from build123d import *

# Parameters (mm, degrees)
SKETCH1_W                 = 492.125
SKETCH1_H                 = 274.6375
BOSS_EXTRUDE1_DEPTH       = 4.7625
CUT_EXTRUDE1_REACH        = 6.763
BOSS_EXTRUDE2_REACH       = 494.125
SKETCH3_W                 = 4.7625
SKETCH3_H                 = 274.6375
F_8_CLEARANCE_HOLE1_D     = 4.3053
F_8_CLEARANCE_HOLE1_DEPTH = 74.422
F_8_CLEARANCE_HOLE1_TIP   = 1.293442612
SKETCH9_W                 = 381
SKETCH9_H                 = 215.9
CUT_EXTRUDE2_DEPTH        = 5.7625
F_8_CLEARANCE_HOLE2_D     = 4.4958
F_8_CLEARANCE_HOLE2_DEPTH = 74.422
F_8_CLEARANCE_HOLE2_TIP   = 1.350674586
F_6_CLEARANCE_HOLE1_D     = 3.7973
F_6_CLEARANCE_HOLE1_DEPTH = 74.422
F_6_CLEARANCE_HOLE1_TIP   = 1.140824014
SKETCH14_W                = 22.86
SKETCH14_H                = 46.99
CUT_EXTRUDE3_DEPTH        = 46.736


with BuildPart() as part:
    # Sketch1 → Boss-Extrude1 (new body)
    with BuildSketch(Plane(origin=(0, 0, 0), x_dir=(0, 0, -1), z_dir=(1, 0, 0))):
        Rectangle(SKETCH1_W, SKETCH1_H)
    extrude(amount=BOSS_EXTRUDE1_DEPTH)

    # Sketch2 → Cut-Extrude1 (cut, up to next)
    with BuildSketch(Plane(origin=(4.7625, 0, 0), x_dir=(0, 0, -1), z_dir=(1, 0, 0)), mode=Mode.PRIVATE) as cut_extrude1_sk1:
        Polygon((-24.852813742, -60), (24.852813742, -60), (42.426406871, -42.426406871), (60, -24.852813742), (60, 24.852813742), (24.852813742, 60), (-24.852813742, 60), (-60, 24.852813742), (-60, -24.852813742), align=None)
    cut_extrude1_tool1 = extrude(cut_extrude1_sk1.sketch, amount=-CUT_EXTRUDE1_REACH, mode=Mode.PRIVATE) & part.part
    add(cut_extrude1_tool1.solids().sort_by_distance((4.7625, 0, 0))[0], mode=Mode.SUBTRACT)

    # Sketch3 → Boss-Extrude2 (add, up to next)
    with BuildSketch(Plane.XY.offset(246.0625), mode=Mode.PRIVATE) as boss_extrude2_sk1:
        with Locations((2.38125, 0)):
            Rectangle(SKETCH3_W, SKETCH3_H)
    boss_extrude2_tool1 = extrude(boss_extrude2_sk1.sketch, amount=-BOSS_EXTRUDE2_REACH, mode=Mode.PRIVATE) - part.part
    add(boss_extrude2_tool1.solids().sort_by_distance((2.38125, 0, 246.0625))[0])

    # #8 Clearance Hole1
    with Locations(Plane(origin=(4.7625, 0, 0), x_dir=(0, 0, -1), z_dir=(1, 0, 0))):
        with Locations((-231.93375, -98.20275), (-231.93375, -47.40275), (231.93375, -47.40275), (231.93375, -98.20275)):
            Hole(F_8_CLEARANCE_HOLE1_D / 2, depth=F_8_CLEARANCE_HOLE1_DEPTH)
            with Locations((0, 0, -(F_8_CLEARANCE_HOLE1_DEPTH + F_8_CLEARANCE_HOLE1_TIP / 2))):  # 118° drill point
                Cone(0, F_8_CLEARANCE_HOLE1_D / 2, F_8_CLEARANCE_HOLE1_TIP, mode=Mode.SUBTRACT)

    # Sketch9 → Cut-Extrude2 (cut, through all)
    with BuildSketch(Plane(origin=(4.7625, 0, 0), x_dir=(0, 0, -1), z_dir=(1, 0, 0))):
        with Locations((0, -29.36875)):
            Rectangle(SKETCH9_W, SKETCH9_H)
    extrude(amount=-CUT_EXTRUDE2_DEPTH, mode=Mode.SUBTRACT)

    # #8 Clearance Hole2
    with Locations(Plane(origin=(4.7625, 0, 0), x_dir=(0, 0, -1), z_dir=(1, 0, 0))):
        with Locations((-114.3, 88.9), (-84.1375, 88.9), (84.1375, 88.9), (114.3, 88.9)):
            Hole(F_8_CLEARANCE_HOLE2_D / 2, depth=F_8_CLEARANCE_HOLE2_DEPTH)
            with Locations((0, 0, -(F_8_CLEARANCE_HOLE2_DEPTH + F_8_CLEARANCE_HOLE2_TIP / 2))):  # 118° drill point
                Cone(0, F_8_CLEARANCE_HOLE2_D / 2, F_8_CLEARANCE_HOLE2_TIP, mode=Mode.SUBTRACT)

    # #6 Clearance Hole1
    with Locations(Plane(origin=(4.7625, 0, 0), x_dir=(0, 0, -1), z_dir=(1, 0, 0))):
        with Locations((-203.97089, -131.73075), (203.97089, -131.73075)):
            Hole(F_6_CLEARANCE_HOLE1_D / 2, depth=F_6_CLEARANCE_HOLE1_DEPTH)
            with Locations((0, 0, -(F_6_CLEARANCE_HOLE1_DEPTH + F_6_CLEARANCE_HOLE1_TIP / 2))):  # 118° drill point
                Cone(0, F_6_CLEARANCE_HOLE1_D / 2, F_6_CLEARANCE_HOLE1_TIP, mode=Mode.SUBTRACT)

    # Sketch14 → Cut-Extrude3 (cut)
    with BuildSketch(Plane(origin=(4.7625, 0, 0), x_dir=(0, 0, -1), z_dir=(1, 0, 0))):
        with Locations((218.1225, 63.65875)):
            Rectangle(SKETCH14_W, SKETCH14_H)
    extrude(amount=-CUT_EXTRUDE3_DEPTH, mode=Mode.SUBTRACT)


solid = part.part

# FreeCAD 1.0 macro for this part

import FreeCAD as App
import Part
import Sketcher

V = App.Vector
Q = App.Units.Quantity


def add_polygon(sketch, points):
    """Adds a closed chain of lines whose ends are joined by coincident constraints."""
    first, n = sketch.GeometryCount, len(points)
    for a, b in zip(points, points[1:] + points[:1]):
        sketch.addGeometry(Part.LineSegment(App.Vector(*a, 0), App.Vector(*b, 0)), False)
    for i in range(n):
        sketch.addConstraint(Sketcher.Constraint("Coincident", first + i, 2, first + (i + 1) % n, 1))

doc = App.newDocument("Part")
params = doc.addObject("Spreadsheet::Sheet", "Params")
for row, (alias, value) in enumerate([
    ("sketch1_width", "10.8125 in"),
    ("sketch1_height", "19.375 in"),
    ("pad1_length", "0.1875 in"),
    ("sketch3_width", "0.1875 in"),
    ("sketch3_height", "10.8125 in"),
    ("pad2_length", "306.0625 mm"),
    ("hole_diameter", "0.1695 in"),
    ("hole_depth", "2.93 in"),
    ("sketch5_height", "15 in"),
    ("sketch5_width", "8.5 in"),
    ("sketch6_diameter", "0.177 in"),
    ("hole2_diameter", "0.177 in"),
    ("hole2_depth", "2.93 in"),
    ("hole3_diameter", "0.1495 in"),
    ("hole3_depth", "2.93 in"),
    ("sketch8_height", "0.9 in"),
    ("sketch8_width", "1.85 in"),
    ("pocket3_length", "1.84 in"),
], start=1):
    params.set(f"A{row}", alias)
    params.set(f"B{row}", "=" + value)
    params.setAlias(f"B{row}", alias)

body = doc.addObject("PartDesign::Body", "Body")

# Sketch on YZ plane
sketch1 = body.newObject("Sketcher::SketchObject", "Sketch")
sketch1.AttachmentSupport = (doc.getObject("YZ_Plane"), [""])
sketch1.MapMode = "FlatFace"
add_polygon(sketch1, [(137, 246), (-137, 246), (-137, -246), (137, -246)])  # lines 0-3
sketch1.addConstraint([
    Sketcher.Constraint("Horizontal", 0),
    Sketcher.Constraint("Vertical", 1),
    Sketcher.Constraint("Horizontal", 2),
    Sketcher.Constraint("Vertical", 3),
    Sketcher.Constraint("Symmetric", 0, 2, 2, 2, -1, 1),
    Sketcher.Constraint("DistanceX", 0, 2, 0, 1, Q("10.8125 in")),
    Sketcher.Constraint("DistanceY", 1, 2, 1, 1, Q("19.375 in")),
])
sketch1.setExpression("Constraints[9]", "Params.sketch1_width")
sketch1.setExpression("Constraints[10]", "Params.sketch1_height")
pad1 = body.newObject("PartDesign::Pad", "Pad")
pad1.Profile = sketch1
pad1.setExpression("Length", "Params.pad1_length")

# Sketch on YZ plane
sketch2 = body.newObject("Sketcher::SketchObject", "Sketch001")
sketch2.AttachmentSupport = (doc.getObject("YZ_Plane"), [""])
sketch2.MapMode = "FlatFace"
sketch2.AttachmentOffset = App.Placement(V(0, 0, 0.1875 * 25.4), App.Rotation())
add_polygon(sketch2, [(-60, 25), (-60, -25), (-25, -60), (25, -60), (60, -25), (60, 25), (25, 60), (-25, 60)])  # lines 0-7
sketch2.addConstraint([
    Sketcher.Constraint("Vertical", 0),
    Sketcher.Constraint("Horizontal", 2),
    Sketcher.Constraint("Vertical", 4),
    Sketcher.Constraint("Horizontal", 6),
    Sketcher.Constraint("Symmetric", 0, 2, 4, 2, -1, 1),
    Sketcher.Constraint("Symmetric", 1, 2, 5, 2, -1, 1),
    Sketcher.Constraint("Perpendicular", 1, 3),
    Sketcher.Constraint("Perpendicular", 5, 7),
    Sketcher.Constraint("Horizontal", 0, 2, 3, 2),
    Sketcher.Constraint("Horizontal", 4, 2, 7, 2),
    Sketcher.Constraint("Vertical", 2, 2, 5, 2),
    Sketcher.Constraint("Equal", 6, 0),
    Sketcher.Constraint("DistanceX", 0, 2, -1, 1, Q("60 mm")),
    Sketcher.Constraint("DistanceX", 2, 1, 2, 2, Q("49.705627 mm")),
])
pocket1 = body.newObject("PartDesign::Pocket", "Pocket")
pocket1.Profile = sketch2
pocket1.Type = "UpToFirst"

# Sketch on XY plane
sketch3 = body.newObject("Sketcher::SketchObject", "Sketch002")
sketch3.AttachmentSupport = (doc.getObject("XY_Plane"), [""])
sketch3.MapMode = "FlatFace"
sketch3.AttachmentOffset = App.Placement(V(0, 0, 9.6875 * 25.4), App.Rotation())
add_polygon(sketch3, [(0, 137.3), (0, -137.3), (4.8, -137.3), (4.8, 137.3)])  # lines 0-3
sketch3.addConstraint([
    Sketcher.Constraint("Vertical", 0),
    Sketcher.Constraint("Horizontal", 1),
    Sketcher.Constraint("Vertical", 2),
    Sketcher.Constraint("Horizontal", 3),
    Sketcher.Constraint("Symmetric", 0, 2, 3, 2, -1, 1),
    Sketcher.Constraint("DistanceX", 1, 1, 1, 2, Q("0.1875 in")),
    Sketcher.Constraint("DistanceY", 0, 2, 0, 1, Q("10.8125 in")),
])
sketch3.setExpression("Constraints[9]", "Params.sketch3_width")
sketch3.setExpression("Constraints[10]", "Params.sketch3_height")
pad2 = body.newObject("PartDesign::Pad", "Pad001")
pad2.Profile = sketch3
pad2.setExpression("Length", "Params.pad2_length")
pad2.Reversed = True

# Sketch on YZ plane
sketch4 = body.newObject("Sketcher::SketchObject", "Sketch003")
sketch4.AttachmentSupport = (doc.getObject("YZ_Plane"), [""])
sketch4.MapMode = "FlatFace"
sketch4.AttachmentOffset = App.Placement(V(0, 0, 0.1875 * 25.4), App.Rotation())
sketch4.addGeometry([
    Part.Circle(V(-98.2, 231.9, 0), V(0, 0, 1), 2.2),
    Part.Circle(V(-47.4, 231.9, 0), V(0, 0, 1), 2.2),
    Part.Circle(V(-47.4, -231.9, 0), V(0, 0, 1), 2.2),
    Part.Circle(V(-98.2, -231.9, 0), V(0, 0, 1), 2.2),
], False)
sketch4.addConstraint([
    Sketcher.Constraint("Equal", 0, 1),
    Sketcher.Constraint("Equal", 1, 2),
    Sketcher.Constraint("Equal", 2, 3),
    Sketcher.Constraint("Symmetric", 1, 3, 2, 3, -1),
    Sketcher.Constraint("Symmetric", 0, 3, 3, 3, -1),
    Sketcher.Constraint("Horizontal", 0, 3, 1, 3),
    Sketcher.Constraint("DistanceX", 0, 3, 1, 3, Q("2 in")),
    Sketcher.Constraint("Diameter", 0, Q("0.1695 in")),
    Sketcher.Constraint("DistanceY", 2, 3, 1, 3, Q("18.2625 in")),
    Sketcher.Constraint("DistanceX", 0, 3, -1, 1, Q("98.20275 mm")),
])
doc.recompute()
hole = body.newObject("PartDesign::Hole", "Hole")
hole.Profile = sketch4
hole.ThreadType = "None"
hole.setExpression("Diameter", "Params.hole_diameter")
hole.DepthType = "Dimension"
hole.setExpression("Depth", "Params.hole_depth")
hole.DrillPoint = "Angled"
hole.DrillPointAngle = 118

# Sketch on YZ plane
sketch5 = body.newObject("Sketcher::SketchObject", "Sketch004")
sketch5.AttachmentSupport = (doc.getObject("YZ_Plane"), [""])
sketch5.MapMode = "FlatFace"
sketch5.AttachmentOffset = App.Placement(V(0, 0, 0.1875 * 25.4), App.Rotation())
add_polygon(sketch5, [(79, 190), (-137, 190), (-137, -190), (79, -190)])  # lines 0-3
sketch5.addConstraint([
    Sketcher.Constraint("Horizontal", 0),
    Sketcher.Constraint("Vertical", 1),
    Sketcher.Constraint("Horizontal", 2),
    Sketcher.Constraint("Vertical", 3),
    Sketcher.Constraint("DistanceY", 1, 2, 1, 1, Q("15 in")),
    Sketcher.Constraint("DistanceX", 0, 2, 0, 1, Q("8.5 in")),
    Sketcher.Constraint("DistanceY", -1, 1, 0, 2, Q("7.5 in")),
    Sketcher.Constraint("DistanceX", 0, 2, -1, 1, Q("5.40625 in")),
])
sketch5.setExpression("Constraints[8]", "Params.sketch5_height")
sketch5.setExpression("Constraints[9]", "Params.sketch5_width")
pocket2 = body.newObject("PartDesign::Pocket", "Pocket001")
pocket2.Profile = sketch5
pocket2.Type = "ThroughAll"

# Sketch on YZ plane
sketch6 = body.newObject("Sketcher::SketchObject", "Sketch005")
sketch6.AttachmentSupport = (doc.getObject("YZ_Plane"), [""])
sketch6.MapMode = "FlatFace"
sketch6.AttachmentOffset = App.Placement(V(0, 0, 0.1875 * 25.4), App.Rotation())
sketch6.addGeometry([
    Part.Circle(V(88.9, 114.3, 0), V(0, 0, 1), 2.2),
    Part.Circle(V(88.9, 84.1, 0), V(0, 0, 1), 2.2),
    Part.Circle(V(88.9, -84.1, 0), V(0, 0, 1), 2.2),
    Part.Circle(V(88.9, -114.3, 0), V(0, 0, 1), 2.2),
], False)
sketch6.addConstraint([
    Sketcher.Constraint("Equal", 0, 1),
    Sketcher.Constraint("Equal", 1, 2),
    Sketcher.Constraint("Equal", 2, 3),
    Sketcher.Constraint("Symmetric", 1, 3, 2, 3, -1),
    Sketcher.Constraint("Symmetric", 0, 3, 3, 3, -1),
    Sketcher.Constraint("Vertical", 0, 3, 1, 3),
    Sketcher.Constraint("Diameter", 0, Q("0.177 in")),
    Sketcher.Constraint("DistanceY", 3, 3, 0, 3, Q("9 in")),
    Sketcher.Constraint("DistanceX", -1, 1, 0, 3, Q("3.5 in")),
    Sketcher.Constraint("DistanceY", -1, 1, 1, 3, Q("3.3125 in")),
])
sketch6.setExpression("Constraints[6]", "Params.sketch6_diameter")
doc.recompute()
hole2 = body.newObject("PartDesign::Hole", "Hole001")
hole2.Profile = sketch6
hole2.ThreadType = "None"
hole2.setExpression("Diameter", "Params.hole2_diameter")
hole2.DepthType = "Dimension"
hole2.setExpression("Depth", "Params.hole2_depth")
hole2.DrillPoint = "Angled"
hole2.DrillPointAngle = 118

# Sketch on YZ plane
sketch7 = body.newObject("Sketcher::SketchObject", "Sketch006")
sketch7.AttachmentSupport = (doc.getObject("YZ_Plane"), [""])
sketch7.MapMode = "FlatFace"
sketch7.AttachmentOffset = App.Placement(V(0, 0, 0.1875 * 25.4), App.Rotation())
sketch7.addGeometry([
    Part.Circle(V(-131.7, 204, 0), V(0, 0, 1), 1.9),
    Part.Circle(V(-131.7, -204, 0), V(0, 0, 1), 1.9),
], False)
sketch7.addConstraint([
    Sketcher.Constraint("Equal", 0, 1),
    Sketcher.Constraint("Symmetric", 0, 3, 1, 3, -1),
    Sketcher.Constraint("Diameter", 0, Q("0.1495 in")),
    Sketcher.Constraint("DistanceY", 1, 3, 0, 3, Q("16.0607 in")),
    Sketcher.Constraint("DistanceX", 0, 3, -1, 1, Q("131.73075 mm")),
])
doc.recompute()
hole3 = body.newObject("PartDesign::Hole", "Hole002")
hole3.Profile = sketch7
hole3.ThreadType = "None"
hole3.setExpression("Diameter", "Params.hole3_diameter")
hole3.DepthType = "Dimension"
hole3.setExpression("Depth", "Params.hole3_depth")
hole3.DrillPoint = "Angled"
hole3.DrillPointAngle = 118

# Sketch on YZ plane
sketch8 = body.newObject("Sketcher::SketchObject", "Sketch007")
sketch8.AttachmentSupport = (doc.getObject("YZ_Plane"), [""])
sketch8.MapMode = "FlatFace"
sketch8.AttachmentOffset = App.Placement(V(0, 0, 0.1875 * 25.4), App.Rotation())
add_polygon(sketch8, [(87, -207), (40, -207), (40, -230), (87, -230)])  # lines 0-3
sketch8.addConstraint([
    Sketcher.Constraint("Horizontal", 0),
    Sketcher.Constraint("Vertical", 1),
    Sketcher.Constraint("Horizontal", 2),
    Sketcher.Constraint("Vertical", 3),
    Sketcher.Constraint("DistanceY", 1, 2, 1, 1, Q("0.9 in")),
    Sketcher.Constraint("DistanceX", 0, 2, 0, 1, Q("1.85 in")),
    Sketcher.Constraint("DistanceY", 0, 2, -1, 1, Q("8.1375 in")),
    Sketcher.Constraint("DistanceX", -1, 1, 0, 2, Q("40.16375 mm")),
])
sketch8.setExpression("Constraints[8]", "Params.sketch8_height")
sketch8.setExpression("Constraints[9]", "Params.sketch8_width")
pocket3 = body.newObject("PartDesign::Pocket", "Pocket002")
pocket3.Profile = sketch8
pocket3.setExpression("Length", "Params.pocket3_length")

doc.recompute()
